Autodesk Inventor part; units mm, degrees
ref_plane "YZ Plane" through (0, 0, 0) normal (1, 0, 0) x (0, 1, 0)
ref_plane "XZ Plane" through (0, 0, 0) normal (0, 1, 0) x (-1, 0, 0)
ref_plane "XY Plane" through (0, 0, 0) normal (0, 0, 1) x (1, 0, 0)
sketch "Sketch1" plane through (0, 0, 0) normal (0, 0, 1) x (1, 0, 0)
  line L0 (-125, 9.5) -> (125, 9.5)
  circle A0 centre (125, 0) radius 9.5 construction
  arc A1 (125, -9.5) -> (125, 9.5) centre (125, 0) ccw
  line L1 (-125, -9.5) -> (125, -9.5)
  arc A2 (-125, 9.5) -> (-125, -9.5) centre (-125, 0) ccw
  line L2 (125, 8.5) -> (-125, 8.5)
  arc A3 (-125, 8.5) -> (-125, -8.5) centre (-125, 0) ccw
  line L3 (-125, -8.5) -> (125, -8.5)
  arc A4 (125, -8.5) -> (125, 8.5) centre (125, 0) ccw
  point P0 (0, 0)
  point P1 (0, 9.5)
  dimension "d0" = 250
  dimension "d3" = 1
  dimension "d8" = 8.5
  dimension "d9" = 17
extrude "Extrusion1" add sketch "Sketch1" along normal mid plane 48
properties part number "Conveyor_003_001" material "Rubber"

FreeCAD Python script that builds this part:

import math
import FreeCAD as App
import Part
import Sketcher
from FreeCAD import Vector
Q = App.Units.Quantity

doc = App.newDocument("Part")
body = doc.addObject("PartDesign::Body", "Body")

sketch1 = body.newObject("Sketcher::SketchObject", "Sketch")
sketch1.AttachmentSupport = (doc.getObject("XY_Plane"), [""])
sketch1.MapMode = "FlatFace"
sketch1.addGeometry([
    Part.LineSegment(Vector(125, 10, 0), Vector(-125, 10, 0)),
    Part.ArcOfCircle(Part.Circle(Vector(-125, 0, 0), Vector(0, 0, 1), 10), math.radians(90), math.radians(270)),
    Part.LineSegment(Vector(-125, -10, 0), Vector(125, -10, 0)),
    Part.ArcOfCircle(Part.Circle(Vector(125, 0, 0), Vector(0, 0, 1), 10), math.radians(-90), math.radians(90)),
    Part.LineSegment(Vector(-125, 8, 0), Vector(125, 8, 0)),
    Part.ArcOfCircle(Part.Circle(Vector(125, 0, 0), Vector(0, 0, 1), 8), math.radians(-90), math.radians(90)),
    Part.LineSegment(Vector(125, -8, 0), Vector(-125, -8, 0)),
    Part.ArcOfCircle(Part.Circle(Vector(-125, 0, 0), Vector(0, 0, 1), 8), math.radians(90), math.radians(270)),
], False)
sketch1.addConstraint([
    Sketcher.Constraint("Tangent", 0, 2, 1, 1),
    Sketcher.Constraint("Tangent", 1, 2, 2, 1),
    Sketcher.Constraint("Tangent", 2, 2, 3, 1),
    Sketcher.Constraint("Tangent", 3, 2, 0, 1),
    Sketcher.Constraint("Tangent", 4, 2, 5, 2),
    Sketcher.Constraint("Tangent", 5, 1, 6, 1),
    Sketcher.Constraint("Tangent", 6, 2, 7, 2),
    Sketcher.Constraint("Tangent", 7, 1, 4, 1),
    Sketcher.Constraint("Horizontal", 0),
    Sketcher.Constraint("Horizontal", 2),
    Sketcher.Constraint("Horizontal", 4),
    Sketcher.Constraint("Horizontal", 6),
    Sketcher.Constraint("Coincident", 5, 3, 3, 3),
    Sketcher.Constraint("Symmetric", 1, 3, 3, 3, -1, 1),
    Sketcher.Constraint("Vertical", 7, 3, 0, 2),
    Sketcher.Constraint("Radius", 5, Q("8.5 mm")),
    Sketcher.Constraint("DistanceX", 0, 2, 0, 1, Q("250 mm")),
    Sketcher.Constraint("DistanceY", 4, 2, 3, 2, Q("1 mm")),
])
pad1 = body.newObject("PartDesign::Pad", "Pad")
pad1.Profile = sketch1
pad1.Length = 48
pad1.Midplane = True

doc.recompute()
